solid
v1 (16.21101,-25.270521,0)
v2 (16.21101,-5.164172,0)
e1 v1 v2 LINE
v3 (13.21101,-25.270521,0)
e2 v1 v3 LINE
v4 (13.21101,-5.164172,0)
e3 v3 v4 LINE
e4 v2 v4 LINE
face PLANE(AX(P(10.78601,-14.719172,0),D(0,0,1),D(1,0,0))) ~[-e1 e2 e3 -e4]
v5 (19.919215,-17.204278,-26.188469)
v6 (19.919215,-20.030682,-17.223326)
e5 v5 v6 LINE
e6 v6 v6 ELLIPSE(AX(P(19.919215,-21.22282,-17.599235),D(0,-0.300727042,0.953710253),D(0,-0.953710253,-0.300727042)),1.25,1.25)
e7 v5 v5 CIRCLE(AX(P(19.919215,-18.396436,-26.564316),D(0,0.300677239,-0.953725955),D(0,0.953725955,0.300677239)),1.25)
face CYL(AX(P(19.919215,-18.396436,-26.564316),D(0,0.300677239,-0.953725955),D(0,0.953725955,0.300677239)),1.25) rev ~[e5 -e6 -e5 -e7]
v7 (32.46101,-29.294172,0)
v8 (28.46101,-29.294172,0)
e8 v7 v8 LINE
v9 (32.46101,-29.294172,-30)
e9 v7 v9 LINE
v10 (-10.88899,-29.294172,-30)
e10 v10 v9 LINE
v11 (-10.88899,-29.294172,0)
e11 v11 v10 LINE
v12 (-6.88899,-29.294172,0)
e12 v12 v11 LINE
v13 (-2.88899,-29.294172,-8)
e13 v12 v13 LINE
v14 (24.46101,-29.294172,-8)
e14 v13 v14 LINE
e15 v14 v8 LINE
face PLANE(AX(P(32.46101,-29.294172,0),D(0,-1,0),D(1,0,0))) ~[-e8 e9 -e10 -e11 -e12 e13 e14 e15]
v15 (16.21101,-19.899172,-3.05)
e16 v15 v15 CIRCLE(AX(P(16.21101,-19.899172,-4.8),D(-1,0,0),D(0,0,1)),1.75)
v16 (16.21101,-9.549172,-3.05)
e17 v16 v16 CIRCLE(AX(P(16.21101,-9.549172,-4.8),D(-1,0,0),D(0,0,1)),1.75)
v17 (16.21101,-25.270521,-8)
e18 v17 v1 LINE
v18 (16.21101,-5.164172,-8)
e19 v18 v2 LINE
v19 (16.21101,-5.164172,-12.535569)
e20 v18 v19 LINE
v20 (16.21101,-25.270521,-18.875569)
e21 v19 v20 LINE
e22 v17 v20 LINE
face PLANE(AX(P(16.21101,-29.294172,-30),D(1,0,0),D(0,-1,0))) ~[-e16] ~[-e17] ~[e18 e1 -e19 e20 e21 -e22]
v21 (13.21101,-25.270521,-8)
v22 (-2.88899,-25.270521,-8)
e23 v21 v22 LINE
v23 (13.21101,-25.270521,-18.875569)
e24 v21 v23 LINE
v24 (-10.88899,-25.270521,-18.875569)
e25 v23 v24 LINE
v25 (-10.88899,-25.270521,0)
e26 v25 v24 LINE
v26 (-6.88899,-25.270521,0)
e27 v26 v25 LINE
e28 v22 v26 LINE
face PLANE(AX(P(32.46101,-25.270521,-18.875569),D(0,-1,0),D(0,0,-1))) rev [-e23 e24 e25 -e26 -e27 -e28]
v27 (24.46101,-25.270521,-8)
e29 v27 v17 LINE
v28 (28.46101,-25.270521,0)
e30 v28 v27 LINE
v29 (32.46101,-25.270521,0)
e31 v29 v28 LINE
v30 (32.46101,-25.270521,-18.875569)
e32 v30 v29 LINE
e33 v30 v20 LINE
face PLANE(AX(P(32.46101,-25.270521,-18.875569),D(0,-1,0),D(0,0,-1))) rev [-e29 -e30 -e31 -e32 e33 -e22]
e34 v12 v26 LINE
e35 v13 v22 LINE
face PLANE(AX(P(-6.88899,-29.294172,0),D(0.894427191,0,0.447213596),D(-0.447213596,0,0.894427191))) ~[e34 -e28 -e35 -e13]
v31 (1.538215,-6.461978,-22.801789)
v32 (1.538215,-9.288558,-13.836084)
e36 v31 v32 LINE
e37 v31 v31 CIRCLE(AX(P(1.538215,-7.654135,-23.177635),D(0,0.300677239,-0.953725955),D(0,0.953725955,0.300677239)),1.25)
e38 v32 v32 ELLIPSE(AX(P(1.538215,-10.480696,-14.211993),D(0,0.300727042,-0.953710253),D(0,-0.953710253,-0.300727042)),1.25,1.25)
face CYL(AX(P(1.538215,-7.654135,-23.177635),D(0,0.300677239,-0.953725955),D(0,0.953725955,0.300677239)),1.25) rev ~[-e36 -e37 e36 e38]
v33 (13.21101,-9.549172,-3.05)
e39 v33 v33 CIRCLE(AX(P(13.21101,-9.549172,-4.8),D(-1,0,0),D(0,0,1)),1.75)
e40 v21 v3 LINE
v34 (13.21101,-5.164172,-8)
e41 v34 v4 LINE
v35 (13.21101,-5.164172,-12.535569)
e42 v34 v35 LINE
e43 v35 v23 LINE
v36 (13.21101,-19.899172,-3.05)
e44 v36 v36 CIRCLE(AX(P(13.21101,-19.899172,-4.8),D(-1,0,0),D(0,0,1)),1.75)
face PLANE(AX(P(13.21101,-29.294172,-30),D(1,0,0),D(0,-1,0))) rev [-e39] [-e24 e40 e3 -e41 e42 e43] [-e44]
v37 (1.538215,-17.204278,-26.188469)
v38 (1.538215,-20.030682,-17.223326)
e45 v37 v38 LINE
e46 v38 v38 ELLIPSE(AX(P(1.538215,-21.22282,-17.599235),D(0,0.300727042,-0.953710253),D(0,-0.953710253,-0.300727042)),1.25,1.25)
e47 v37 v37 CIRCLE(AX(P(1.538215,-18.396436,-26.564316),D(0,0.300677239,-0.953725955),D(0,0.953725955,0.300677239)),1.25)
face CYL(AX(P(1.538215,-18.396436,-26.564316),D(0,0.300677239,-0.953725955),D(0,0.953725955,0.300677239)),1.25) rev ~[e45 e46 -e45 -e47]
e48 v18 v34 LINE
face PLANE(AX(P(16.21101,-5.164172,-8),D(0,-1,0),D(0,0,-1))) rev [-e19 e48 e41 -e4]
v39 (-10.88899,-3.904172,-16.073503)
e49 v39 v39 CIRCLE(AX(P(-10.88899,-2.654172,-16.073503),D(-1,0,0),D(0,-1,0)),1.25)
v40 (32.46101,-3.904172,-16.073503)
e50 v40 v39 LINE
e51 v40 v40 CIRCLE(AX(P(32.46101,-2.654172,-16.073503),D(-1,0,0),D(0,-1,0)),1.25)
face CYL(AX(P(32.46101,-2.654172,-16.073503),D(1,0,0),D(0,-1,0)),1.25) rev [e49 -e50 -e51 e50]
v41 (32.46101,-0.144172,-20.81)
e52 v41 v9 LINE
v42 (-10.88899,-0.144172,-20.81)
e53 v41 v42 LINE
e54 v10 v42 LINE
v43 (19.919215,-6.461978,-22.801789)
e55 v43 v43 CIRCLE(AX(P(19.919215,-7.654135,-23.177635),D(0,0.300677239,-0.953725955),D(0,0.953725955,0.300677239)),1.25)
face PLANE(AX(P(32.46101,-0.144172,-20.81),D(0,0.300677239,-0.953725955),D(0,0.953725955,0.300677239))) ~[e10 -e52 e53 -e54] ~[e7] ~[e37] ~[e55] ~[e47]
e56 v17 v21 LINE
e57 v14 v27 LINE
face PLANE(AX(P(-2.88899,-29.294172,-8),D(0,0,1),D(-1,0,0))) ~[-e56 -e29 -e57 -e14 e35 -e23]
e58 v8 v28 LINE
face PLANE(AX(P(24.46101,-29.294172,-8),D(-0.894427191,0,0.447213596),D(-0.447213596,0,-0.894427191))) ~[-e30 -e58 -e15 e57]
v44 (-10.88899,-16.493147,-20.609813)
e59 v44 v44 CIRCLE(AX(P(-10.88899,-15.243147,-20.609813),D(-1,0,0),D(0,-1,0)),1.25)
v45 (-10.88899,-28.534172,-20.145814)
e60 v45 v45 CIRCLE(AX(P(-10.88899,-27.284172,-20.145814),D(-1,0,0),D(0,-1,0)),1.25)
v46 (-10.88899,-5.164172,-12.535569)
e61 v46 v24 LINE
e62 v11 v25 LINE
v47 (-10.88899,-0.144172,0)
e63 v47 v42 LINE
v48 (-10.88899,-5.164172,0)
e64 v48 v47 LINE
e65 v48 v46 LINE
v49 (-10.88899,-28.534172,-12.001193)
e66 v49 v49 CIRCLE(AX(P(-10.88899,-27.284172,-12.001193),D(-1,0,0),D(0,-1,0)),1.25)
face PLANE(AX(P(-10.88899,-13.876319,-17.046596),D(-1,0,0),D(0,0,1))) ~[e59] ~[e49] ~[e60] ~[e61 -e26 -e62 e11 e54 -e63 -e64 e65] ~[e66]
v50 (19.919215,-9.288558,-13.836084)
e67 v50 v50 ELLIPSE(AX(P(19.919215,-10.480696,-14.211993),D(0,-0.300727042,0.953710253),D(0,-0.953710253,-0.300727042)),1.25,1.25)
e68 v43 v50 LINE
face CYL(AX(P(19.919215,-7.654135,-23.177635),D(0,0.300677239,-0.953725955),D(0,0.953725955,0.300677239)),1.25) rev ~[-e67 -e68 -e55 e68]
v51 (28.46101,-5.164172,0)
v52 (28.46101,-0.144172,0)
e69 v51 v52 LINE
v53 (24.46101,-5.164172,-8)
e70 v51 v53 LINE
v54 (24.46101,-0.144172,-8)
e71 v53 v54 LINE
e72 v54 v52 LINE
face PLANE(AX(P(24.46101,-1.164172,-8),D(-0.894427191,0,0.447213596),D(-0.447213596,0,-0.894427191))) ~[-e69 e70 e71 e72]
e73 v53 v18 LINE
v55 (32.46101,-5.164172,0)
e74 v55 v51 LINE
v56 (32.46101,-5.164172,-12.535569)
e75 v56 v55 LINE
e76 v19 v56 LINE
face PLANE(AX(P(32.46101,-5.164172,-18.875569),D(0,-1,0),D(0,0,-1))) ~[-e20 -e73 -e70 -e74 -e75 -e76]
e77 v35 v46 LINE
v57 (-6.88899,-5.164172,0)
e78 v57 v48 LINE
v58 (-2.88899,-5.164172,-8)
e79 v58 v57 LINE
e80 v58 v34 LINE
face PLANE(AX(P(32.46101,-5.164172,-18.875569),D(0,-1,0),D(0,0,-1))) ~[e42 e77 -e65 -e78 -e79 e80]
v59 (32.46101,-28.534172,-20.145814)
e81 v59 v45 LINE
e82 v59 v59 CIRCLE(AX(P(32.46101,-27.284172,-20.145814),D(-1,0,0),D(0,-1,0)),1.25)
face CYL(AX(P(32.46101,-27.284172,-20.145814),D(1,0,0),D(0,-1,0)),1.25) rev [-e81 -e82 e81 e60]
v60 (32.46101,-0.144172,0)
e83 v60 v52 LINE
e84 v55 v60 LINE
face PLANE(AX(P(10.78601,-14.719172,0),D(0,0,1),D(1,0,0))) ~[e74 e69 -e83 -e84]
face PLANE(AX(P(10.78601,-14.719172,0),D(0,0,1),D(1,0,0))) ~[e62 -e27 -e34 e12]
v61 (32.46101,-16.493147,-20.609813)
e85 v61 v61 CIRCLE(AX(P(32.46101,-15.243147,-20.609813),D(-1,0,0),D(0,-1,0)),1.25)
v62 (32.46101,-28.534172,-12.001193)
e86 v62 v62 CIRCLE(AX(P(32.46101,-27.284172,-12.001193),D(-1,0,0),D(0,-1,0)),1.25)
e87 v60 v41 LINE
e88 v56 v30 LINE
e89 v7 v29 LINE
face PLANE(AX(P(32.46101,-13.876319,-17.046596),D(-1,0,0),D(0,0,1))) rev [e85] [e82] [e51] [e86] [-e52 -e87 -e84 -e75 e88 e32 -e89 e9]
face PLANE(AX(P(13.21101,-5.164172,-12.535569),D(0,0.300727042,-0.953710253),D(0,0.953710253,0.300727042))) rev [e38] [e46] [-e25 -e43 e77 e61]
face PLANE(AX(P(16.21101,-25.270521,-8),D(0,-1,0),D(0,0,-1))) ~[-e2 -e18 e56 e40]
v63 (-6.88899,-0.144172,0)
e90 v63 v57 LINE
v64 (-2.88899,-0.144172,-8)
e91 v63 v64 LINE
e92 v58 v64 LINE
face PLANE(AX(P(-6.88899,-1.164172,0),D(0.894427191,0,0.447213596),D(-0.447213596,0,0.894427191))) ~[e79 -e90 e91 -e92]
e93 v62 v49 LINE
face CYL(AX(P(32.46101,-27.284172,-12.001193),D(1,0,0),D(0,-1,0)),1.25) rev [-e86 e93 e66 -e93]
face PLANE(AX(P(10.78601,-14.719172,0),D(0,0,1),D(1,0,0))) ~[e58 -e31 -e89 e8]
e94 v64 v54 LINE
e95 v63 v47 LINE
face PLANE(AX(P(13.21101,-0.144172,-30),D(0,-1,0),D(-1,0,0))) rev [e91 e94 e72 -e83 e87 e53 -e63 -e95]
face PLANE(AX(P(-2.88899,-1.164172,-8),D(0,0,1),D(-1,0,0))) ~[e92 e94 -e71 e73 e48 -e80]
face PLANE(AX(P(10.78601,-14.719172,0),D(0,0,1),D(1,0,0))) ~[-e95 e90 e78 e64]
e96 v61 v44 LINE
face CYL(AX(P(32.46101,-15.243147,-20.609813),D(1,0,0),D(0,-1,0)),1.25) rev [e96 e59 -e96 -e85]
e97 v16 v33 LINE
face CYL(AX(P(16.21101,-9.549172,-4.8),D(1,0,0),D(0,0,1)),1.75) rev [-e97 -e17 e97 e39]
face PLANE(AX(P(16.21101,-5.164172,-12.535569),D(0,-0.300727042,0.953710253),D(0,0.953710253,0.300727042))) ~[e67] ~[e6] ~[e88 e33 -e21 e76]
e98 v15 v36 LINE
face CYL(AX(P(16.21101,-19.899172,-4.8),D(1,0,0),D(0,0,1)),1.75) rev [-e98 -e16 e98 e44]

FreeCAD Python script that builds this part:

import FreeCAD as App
import Part
import Sketcher
from FreeCAD import Vector


def add_polygon(sketch, points):
    """Adds a closed chain of lines whose ends are joined by coincident constraints."""
    first, n = sketch.GeometryCount, len(points)
    for a, b in zip(points, points[1:] + points[:1]):
        sketch.addGeometry(Part.LineSegment(App.Vector(*a, 0), App.Vector(*b, 0)), False)
    for i in range(n):
        sketch.addConstraint(Sketcher.Constraint("Coincident", first + i, 2, first + (i + 1) % n, 1))

doc = App.newDocument("Part")
body = doc.addObject("PartDesign::Body", "Body")

# Sketch on XY plane
sketch1 = body.newObject("Sketcher::SketchObject", "Sketch")
sketch1.AttachmentSupport = (doc.getObject("XY_Plane"), [""])
sketch1.MapMode = "FlatFace"
add_polygon(sketch1, [(-54, 0), (-54, -29), (-11, -29), (-11, 0)])  # lines 0-3
sketch1.addConstraint([
    Sketcher.Constraint("Vertical", 0),
    Sketcher.Constraint("Horizontal", 1),
    Sketcher.Constraint("Vertical", 2),
    Sketcher.Constraint("Horizontal", 3),
    Sketcher.Constraint("DistanceX", 1, 1, 1, 2, 43.35),
    Sketcher.Constraint("DistanceY", 0, 2, 0, 1, 29.15),
    Sketcher.Constraint("DistanceX", 0, 2, -1, 1, 54.23899),
    Sketcher.Constraint("DistanceY", 0, 2, -1, 1, 29.294172),
])
pad1 = body.newObject("PartDesign::Pad", "Pad")
pad1.Profile = sketch1
pad1.Length = 30
pad1.Reversed = True

# Sketch on XZ plane
sketch2 = body.newObject("Sketcher::SketchObject", "Sketch001")
sketch2.AttachmentSupport = (doc.getObject("XZ_Plane"), [""])
sketch2.MapMode = "FlatFace"
sketch2.AttachmentOffset = App.Placement(Vector(0, 0, 29.294172), App.Rotation())
add_polygon(sketch2, [(-19, -8), (-15, 0), (-50, 0), (-46, -8)])  # lines 0-3
sketch2.addConstraint([
    Sketcher.Constraint("Horizontal", 1),
    Sketcher.Constraint("Horizontal", 3),
    Sketcher.Constraint("PointOnObject", 0, 2, -1),
    Sketcher.Constraint("Equal", 0, 2),
    Sketcher.Constraint("DistanceY", 2, 2, -1, 1, 8.0),
    Sketcher.Constraint("DistanceX", 1, 2, 2, 2, 4.0),
    Sketcher.Constraint("DistanceX", 1, 2, 1, 1, 35.35),
    Sketcher.Constraint("DistanceX", 0, 2, -1, 1, 14.88899),
])
pocket1 = body.newObject("PartDesign::Pocket", "Pocket")
pocket1.Profile = sketch2
pocket1.Length = 28.13

# Sketch on YZ plane
sketch3 = body.newObject("Sketcher::SketchObject", "Sketch002")
sketch3.AttachmentSupport = (doc.getObject("YZ_Plane"), [""])
sketch3.MapMode = "FlatFace"
sketch3.AttachmentOffset = App.Placement(Vector(0, 0, -54.23899), App.Rotation())
add_polygon(sketch3, [(-5, -19), (-25, -19), (-25, 0), (-5, 0)])  # lines 0-3
sketch3.addConstraint([
    Sketcher.Constraint("Horizontal", 0),
    Sketcher.Constraint("Vertical", 1),
    Sketcher.Constraint("Horizontal", 2),
    Sketcher.Constraint("Vertical", 3),
    Sketcher.Constraint("PointOnObject", 1, 2, -1),
    Sketcher.Constraint("DistanceX", 0, 2, 0, 1, 20.106349),
    Sketcher.Constraint("DistanceY", 1, 1, 1, 2, 18.875569),
    Sketcher.Constraint("DistanceX", 0, 2, -1, 1, 25.270521),
])
pocket2 = body.newObject("PartDesign::Pocket", "Pocket001")
pocket2.Profile = sketch3
pocket2.Length = 50
pocket2.Reversed = True

# Sketch on XY plane
sketch4 = body.newObject("Sketcher::SketchObject", "Sketch003")
sketch4.AttachmentSupport = (doc.getObject("XY_Plane"), [""])
sketch4.MapMode = "FlatFace"
sketch4.AttachmentOffset = App.Placement(Vector(0, 0, -30), App.Rotation())
add_polygon(sketch4, [(-35, -0.1), (-35, -29.3), (-38, -29.3), (-38, -0.1)])  # lines 0-3
sketch4.addConstraint([
    Sketcher.Constraint("Vertical", 0),
    Sketcher.Constraint("Horizontal", 1),
    Sketcher.Constraint("Vertical", 2),
    Sketcher.Constraint("Horizontal", 3),
    Sketcher.Constraint("DistanceX", 1, 2, 1, 1, 3.0),
    Sketcher.Constraint("DistanceY", 0, 2, 0, 1, 29.15),
    Sketcher.Constraint("DistanceX", 0, 2, -1, 1, 34.98899),
    Sketcher.Constraint("DistanceY", 0, 2, -1, 1, 29.294172),
])
pad2 = body.newObject("PartDesign::Pad", "Pad001")
pad2.Profile = sketch4
pad2.Length = 30

# Sketch on YZ plane
sketch5 = body.newObject("Sketcher::SketchObject", "Sketch004")
sketch5.AttachmentSupport = (doc.getObject("YZ_Plane"), [""])
sketch5.MapMode = "FlatFace"
sketch5.AttachmentOffset = App.Placement(Vector(0, 0, -37.98899), App.Rotation())
add_polygon(sketch5, [(-25.3, -8), (-29.3, -8), (-29.3, 0), (-25.3, 0)])  # lines 0-3
sketch5.addConstraint([
    Sketcher.Constraint("Horizontal", 0),
    Sketcher.Constraint("Vertical", 1),
    Sketcher.Constraint("Horizontal", 2),
    Sketcher.Constraint("Vertical", 3),
    Sketcher.Constraint("PointOnObject", 1, 2, -1),
    Sketcher.Constraint("DistanceY", 1, 1, 1, 2, 8.0),
    Sketcher.Constraint("DistanceX", 0, 2, 0, 1, 4.023651),
    Sketcher.Constraint("DistanceX", 0, 2, -1, 1, 29.294172),
])
pocket3 = body.newObject("PartDesign::Pocket", "Pocket002")
pocket3.Profile = sketch5
pocket3.Length = 5
pocket3.Reversed = True

# Sketch on YZ plane
sketch6 = body.newObject("Sketcher::SketchObject", "Sketch005")
sketch6.AttachmentSupport = (doc.getObject("YZ_Plane"), [""])
sketch6.MapMode = "FlatFace"
sketch6.AttachmentOffset = App.Placement(Vector(0, 0, -37.98899), App.Rotation())
add_polygon(sketch6, [(-1.2, -8), (-5.2, -8), (-5.2, 0), (-1.2, 0)])  # lines 0-3
sketch6.addConstraint([
    Sketcher.Constraint("Horizontal", 0),
    Sketcher.Constraint("Vertical", 1),
    Sketcher.Constraint("Horizontal", 2),
    Sketcher.Constraint("Vertical", 3),
    Sketcher.Constraint("PointOnObject", 1, 2, -1),
    Sketcher.Constraint("DistanceX", 0, 2, 0, 1, 4.0),
    Sketcher.Constraint("DistanceY", 1, 1, 1, 2, 8.0),
    Sketcher.Constraint("DistanceX", 0, 2, -1, 1, 5.164172),
])
pocket4 = body.newObject("PartDesign::Pocket", "Pocket003")
pocket4.Profile = sketch6
pocket4.Length = 5
pocket4.Reversed = True

# Sketch on YZ plane
sketch7 = body.newObject("Sketcher::SketchObject", "Sketch006")
sketch7.AttachmentSupport = (doc.getObject("YZ_Plane"), [""])
sketch7.MapMode = "FlatFace"
sketch7.AttachmentOffset = App.Placement(Vector(0, 0, -37.98899), App.Rotation())
sketch7.addGeometry([
    Part.Circle(Vector(-19.9, -4.8, 0), Vector(0, 0, 1), 1.8),
    Part.Circle(Vector(-9.5, -4.8, 0), Vector(0, 0, 1), 1.8),
], False)
sketch7.addConstraint([
    Sketcher.Constraint("Equal", 0, 1),
    Sketcher.Constraint("Horizontal", 0, 3, 1, 3),
    Sketcher.Constraint("Diameter", 0, 3.5),
    Sketcher.Constraint("DistanceY", 0, 3, -1, 1, 4.8),
    Sketcher.Constraint("DistanceX", 0, 3, 1, 3, 10.35),
    Sketcher.Constraint("DistanceX", 0, 3, -1, 1, 19.899172),
])
pocket5 = body.newObject("PartDesign::Pocket", "Pocket004")
pocket5.Profile = sketch7
pocket5.Length = 5
pocket5.Reversed = True

# Sketch on YZ plane
sketch8 = body.newObject("Sketcher::SketchObject", "Sketch007")
sketch8.AttachmentSupport = (doc.getObject("YZ_Plane"), [""])
sketch8.MapMode = "FlatFace"
sketch8.AttachmentOffset = App.Placement(Vector(0, 0, -54.23899), App.Rotation())
add_polygon(sketch8, [(0, -30), (-29, -30), (0, -21)])  # lines 0-2
sketch8.addConstraint([
    Sketcher.Constraint("Horizontal", 0),
    Sketcher.Constraint("Vertical", 2),
    Sketcher.Constraint("DistanceY", 0, 2, -1, 1, 30.0),
    Sketcher.Constraint("DistanceX", 0, 2, 0, 1, 29.15),
    Sketcher.Constraint("DistanceY", 2, 2, 2, 1, 9.19),
    Sketcher.Constraint("DistanceX", 0, 2, -1, 1, 29.294172),
])
pocket6 = body.newObject("PartDesign::Pocket", "Pocket005")
pocket6.Profile = sketch8
pocket6.Length = 50
pocket6.Reversed = True

# Sketch on YZ plane
sketch9 = body.newObject("Sketcher::SketchObject", "Sketch008")
sketch9.AttachmentSupport = (doc.getObject("YZ_Plane"), [""])
sketch9.MapMode = "FlatFace"
sketch9.AttachmentOffset = App.Placement(Vector(0, 0, -54.23899), App.Rotation())
sketch9.addGeometry([
    Part.Circle(Vector(-27.3, -12, 0), Vector(0, 0, 1), 1.2),
    Part.Circle(Vector(-27.3, -20.1, 0), Vector(0, 0, 1), 1.2),
], False)
sketch9.addConstraint([
    Sketcher.Constraint("Equal", 0, 1),
    Sketcher.Constraint("Vertical", 0, 3, 1, 3),
    Sketcher.Constraint("Diameter", 0, 2.5),
    Sketcher.Constraint("DistanceX", 0, 3, -1, 1, 27.284172),
    Sketcher.Constraint("DistanceY", 1, 3, 0, 3, 8.144621),
    Sketcher.Constraint("DistanceY", 0, 3, -1, 1, 12.001193),
])
pocket7 = body.newObject("PartDesign::Pocket", "Pocket006")
pocket7.Profile = sketch9
pocket7.Length = 45
pocket7.Reversed = True

# Sketch on YZ plane
sketch10 = body.newObject("Sketcher::SketchObject", "Sketch009")
sketch10.AttachmentSupport = (doc.getObject("YZ_Plane"), [""])
sketch10.MapMode = "FlatFace"
sketch10.AttachmentOffset = App.Placement(Vector(0, 0, -54.23899), App.Rotation())
sketch10.addGeometry(Part.Circle(Vector(-2.7, -16.1, 0), Vector(0, 0, 1), 1.2), False)
sketch10.addConstraint([
    Sketcher.Constraint("Diameter", 0, 2.5),
    Sketcher.Constraint("DistanceX", 0, 3, -1, 1, 2.654172),
    Sketcher.Constraint("DistanceY", 0, 3, -1, 1, 16.073503),
])
pocket8 = body.newObject("PartDesign::Pocket", "Pocket007")
pocket8.Profile = sketch10
pocket8.Length = 50
pocket8.Reversed = True

# Sketch on YZ plane
sketch11 = body.newObject("Sketcher::SketchObject", "Sketch010")
sketch11.AttachmentSupport = (doc.getObject("YZ_Plane"), [""])
sketch11.MapMode = "FlatFace"
sketch11.AttachmentOffset = App.Placement(Vector(0, 0, -54.23899), App.Rotation())
sketch11.addGeometry(Part.Circle(Vector(-15.2, -20.6, 0), Vector(0, 0, 1), 1.2), False)
sketch11.addConstraint([
    Sketcher.Constraint("Diameter", 0, 2.5),
    Sketcher.Constraint("DistanceX", 0, 3, -1, 1, 15.243147),
    Sketcher.Constraint("DistanceY", 0, 3, -1, 1, 20.609813),
])
pocket9 = body.newObject("PartDesign::Pocket", "Pocket008")
pocket9.Profile = sketch11
pocket9.Length = 50
pocket9.Reversed = True

# Sketch on XZ plane
sketch12 = body.newObject("Sketcher::SketchObject", "Sketch011")
sketch12.AttachmentSupport = (doc.getObject("XZ_Plane"), [""])
sketch12.MapMode = "FlatFace"
sketch12.AttachmentOffset = App.Placement(Vector(0, 0, 1.164172), App.Rotation())
add_polygon(sketch12, [(-19, -8), (-15, 0), (-50, 0), (-46, -8)])  # lines 0-3
sketch12.addConstraint([
    Sketcher.Constraint("Horizontal", 1),
    Sketcher.Constraint("Horizontal", 3),
    Sketcher.Constraint("PointOnObject", 0, 2, -1),
    Sketcher.Constraint("Equal", 0, 2),
    Sketcher.Constraint("DistanceY", 2, 2, -1, 1, 8.0),
    Sketcher.Constraint("DistanceX", 1, 2, 2, 2, 4.0),
    Sketcher.Constraint("DistanceX", 1, 2, 1, 1, 35.35),
    Sketcher.Constraint("DistanceX", 0, 2, -1, 1, 14.88899),
])
pocket10 = body.newObject("PartDesign::Pocket", "Pocket009")
pocket10.Profile = sketch12
pocket10.Length = 5

# Sketch on YZ plane
sketch13 = body.newObject("Sketcher::SketchObject", "Sketch012")
sketch13.AttachmentSupport = (doc.getObject("YZ_Plane"), [""])
sketch13.MapMode = "FlatFace"
sketch13.AttachmentOffset = App.Placement(Vector(0, 0, -34.98899), App.Rotation())
add_polygon(sketch13, [(-5, -19), (-5, -13), (-25, -19)])  # lines 0-2
sketch13.addConstraint([
    Sketcher.Constraint("Vertical", 0),
    Sketcher.Constraint("Horizontal", 2),
    Sketcher.Constraint("DistanceY", 0, 1, 0, 2, 6.34),
    Sketcher.Constraint("DistanceX", 2, 1, 2, 2, 20.106349),
    Sketcher.Constraint("DistanceX", 0, 2, -1, 1, 5.164172),
    Sketcher.Constraint("DistanceY", 0, 2, -1, 1, 12.535569),
])
pad3 = body.newObject("PartDesign::Pad", "Pad002")
pad3.Profile = sketch13
pad3.Length = 24.1

# Sketch on YZ plane
sketch14 = body.newObject("Sketcher::SketchObject", "Sketch013")
sketch14.AttachmentSupport = (doc.getObject("YZ_Plane"), [""])
sketch14.MapMode = "FlatFace"
sketch14.AttachmentOffset = App.Placement(Vector(0, 0, -37.98899), App.Rotation())
add_polygon(sketch14, [(-5, -13), (-5, -19), (-25, -19)])  # lines 0-2
sketch14.addConstraint([
    Sketcher.Constraint("Vertical", 0),
    Sketcher.Constraint("Horizontal", 1),
    Sketcher.Constraint("DistanceY", 0, 2, 0, 1, 6.34),
    Sketcher.Constraint("DistanceX", 1, 2, 1, 1, 20.106349),
    Sketcher.Constraint("DistanceX", 0, 2, -1, 1, 5.164172),
    Sketcher.Constraint("DistanceY", 0, 2, -1, 1, 18.875569),
])
pad4 = body.newObject("PartDesign::Pad", "Pad003")
pad4.Profile = sketch14
pad4.Length = 16.25
pad4.Reversed = True
body2 = doc.addObject("PartDesign::Body", "Body001")
doc.recompute()

mirroring = doc.addObject("Part::Mirroring", "Mirroring")
mirroring.Source = body
mirroring.Base = Vector(-10.88899, -0.144172, -30)
mirroring.Normal = Vector(1, 0, 0)
body2.BaseFeature = mirroring
doc.recompute()

# Sketch on an angled plane
sketch15 = body2.newObject("Sketcher::SketchObject", "Sketch014")
sketch15.Placement = App.Placement(Vector(0, 5.954518, -18.887291), App.Rotation(Vector(-1, 0, 0), Vector(0, 0.953725955, 0.300677239), Vector(0, 0.300677239, -0.953725955), "ZXY"))
sketch15.addGeometry([
    Part.Circle(Vector(-19.9, -25.5, 0), Vector(0, 0, 1), 1.3),
    Part.Circle(Vector(-1.5, -25.5, 0), Vector(0, 0, 1), 1.3),
    Part.Circle(Vector(-1.5, -14.3, 0), Vector(0, 0, 1), 1.3),
    Part.Circle(Vector(-19.9, -14.3, 0), Vector(0, 0, 1), 1.3),
], False)
sketch15.addConstraint([
    Sketcher.Constraint("Equal", 0, 1),
    Sketcher.Constraint("Equal", 1, 2),
    Sketcher.Constraint("Equal", 2, 3),
    Sketcher.Constraint("Horizontal", 0, 3, 1, 3),
    Sketcher.Constraint("Horizontal", 2, 3, 3, 3),
    Sketcher.Constraint("Vertical", 1, 3, 2, 3),
    Sketcher.Constraint("Vertical", 0, 3, 3, 3),
    Sketcher.Constraint("Diameter", 0, 2.5),
    Sketcher.Constraint("DistanceX", 0, 3, 1, 3, 18.381),
    Sketcher.Constraint("DistanceY", 1, 3, 2, 3, 11.263509),
    Sketcher.Constraint("DistanceX", 0, 3, -1, 1, 19.919215),
    Sketcher.Constraint("DistanceY", 0, 3, -1, 1, 25.532443),
])
pocket11 = body2.newObject("PartDesign::Pocket", "Pocket010")
pocket11.Profile = sketch15
pocket11.Length = 10
body.Visibility = False
mirroring.Visibility = False

doc.recompute()
